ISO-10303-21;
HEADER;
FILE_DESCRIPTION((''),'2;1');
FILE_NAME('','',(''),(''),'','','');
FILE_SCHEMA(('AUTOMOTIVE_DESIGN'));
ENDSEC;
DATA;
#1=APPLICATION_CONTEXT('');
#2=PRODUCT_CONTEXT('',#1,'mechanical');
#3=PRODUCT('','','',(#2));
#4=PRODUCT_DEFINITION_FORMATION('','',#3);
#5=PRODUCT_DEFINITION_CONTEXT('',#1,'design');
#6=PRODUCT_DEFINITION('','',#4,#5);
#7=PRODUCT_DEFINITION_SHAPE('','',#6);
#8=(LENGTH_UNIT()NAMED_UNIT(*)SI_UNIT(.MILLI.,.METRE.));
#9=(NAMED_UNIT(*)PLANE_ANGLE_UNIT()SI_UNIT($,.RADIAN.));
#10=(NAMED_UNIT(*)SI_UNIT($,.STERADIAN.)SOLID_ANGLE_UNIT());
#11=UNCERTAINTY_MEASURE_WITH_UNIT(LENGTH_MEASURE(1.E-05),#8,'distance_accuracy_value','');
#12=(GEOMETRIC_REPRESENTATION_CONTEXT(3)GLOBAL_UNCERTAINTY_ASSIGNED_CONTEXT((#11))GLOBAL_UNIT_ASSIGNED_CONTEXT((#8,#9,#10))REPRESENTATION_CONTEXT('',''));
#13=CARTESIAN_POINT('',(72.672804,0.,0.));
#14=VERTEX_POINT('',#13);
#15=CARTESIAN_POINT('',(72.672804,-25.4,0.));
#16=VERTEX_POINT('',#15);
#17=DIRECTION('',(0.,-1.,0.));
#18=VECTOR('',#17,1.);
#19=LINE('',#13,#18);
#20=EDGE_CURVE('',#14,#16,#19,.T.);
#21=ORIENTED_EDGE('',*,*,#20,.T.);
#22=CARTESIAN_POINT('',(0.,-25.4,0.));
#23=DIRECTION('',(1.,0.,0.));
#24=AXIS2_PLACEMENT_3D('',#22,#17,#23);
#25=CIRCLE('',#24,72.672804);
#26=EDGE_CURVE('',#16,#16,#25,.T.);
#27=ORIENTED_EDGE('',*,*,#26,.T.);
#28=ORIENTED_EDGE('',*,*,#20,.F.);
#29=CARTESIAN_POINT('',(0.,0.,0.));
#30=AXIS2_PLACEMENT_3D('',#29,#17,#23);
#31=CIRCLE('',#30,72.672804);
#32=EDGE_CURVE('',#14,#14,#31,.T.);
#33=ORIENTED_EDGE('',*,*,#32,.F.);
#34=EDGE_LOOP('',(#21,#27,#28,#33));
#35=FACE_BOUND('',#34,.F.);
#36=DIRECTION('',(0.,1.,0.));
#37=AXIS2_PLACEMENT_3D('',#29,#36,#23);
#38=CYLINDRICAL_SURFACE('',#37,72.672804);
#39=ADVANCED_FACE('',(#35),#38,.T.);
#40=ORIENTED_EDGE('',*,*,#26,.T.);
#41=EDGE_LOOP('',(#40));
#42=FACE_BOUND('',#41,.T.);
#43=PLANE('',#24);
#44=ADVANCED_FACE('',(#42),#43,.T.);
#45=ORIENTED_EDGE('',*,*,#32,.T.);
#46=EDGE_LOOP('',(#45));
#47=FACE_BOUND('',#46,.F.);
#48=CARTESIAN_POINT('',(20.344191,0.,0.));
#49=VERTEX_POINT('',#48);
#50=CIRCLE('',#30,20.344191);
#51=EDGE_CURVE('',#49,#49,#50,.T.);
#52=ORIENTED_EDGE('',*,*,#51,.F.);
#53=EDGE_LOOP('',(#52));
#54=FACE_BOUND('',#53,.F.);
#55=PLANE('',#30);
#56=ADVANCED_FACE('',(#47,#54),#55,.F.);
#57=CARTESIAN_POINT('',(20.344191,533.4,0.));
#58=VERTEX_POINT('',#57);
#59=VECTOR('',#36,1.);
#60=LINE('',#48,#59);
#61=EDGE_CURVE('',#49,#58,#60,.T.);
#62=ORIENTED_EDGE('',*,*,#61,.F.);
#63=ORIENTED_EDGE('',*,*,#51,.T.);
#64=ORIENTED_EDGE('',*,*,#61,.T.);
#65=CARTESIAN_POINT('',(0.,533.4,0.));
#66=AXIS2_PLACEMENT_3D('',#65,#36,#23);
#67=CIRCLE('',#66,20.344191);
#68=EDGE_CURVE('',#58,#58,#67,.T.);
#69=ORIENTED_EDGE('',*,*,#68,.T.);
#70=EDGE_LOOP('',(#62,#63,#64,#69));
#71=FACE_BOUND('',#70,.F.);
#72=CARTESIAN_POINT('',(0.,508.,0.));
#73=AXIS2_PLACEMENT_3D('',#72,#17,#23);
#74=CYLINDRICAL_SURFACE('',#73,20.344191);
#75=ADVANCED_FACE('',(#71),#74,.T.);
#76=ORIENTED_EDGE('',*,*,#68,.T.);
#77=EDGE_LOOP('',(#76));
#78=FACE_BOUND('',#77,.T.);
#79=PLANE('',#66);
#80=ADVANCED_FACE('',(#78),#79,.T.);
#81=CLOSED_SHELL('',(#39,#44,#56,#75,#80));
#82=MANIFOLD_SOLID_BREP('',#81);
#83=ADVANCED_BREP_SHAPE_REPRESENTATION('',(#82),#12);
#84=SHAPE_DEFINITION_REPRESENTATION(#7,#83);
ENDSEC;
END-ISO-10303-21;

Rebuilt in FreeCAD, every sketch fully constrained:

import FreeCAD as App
import Part
import Sketcher
from FreeCAD import Vector
Q = App.Units.Quantity

doc = App.newDocument("Part")
body = doc.addObject("PartDesign::Body", "Body")

# Sketch on XZ plane
sketch1 = body.newObject("Sketcher::SketchObject", "Sketch")
sketch1.AttachmentSupport = (doc.getObject("XZ_Plane"), [""])
sketch1.MapMode = "FlatFace"
sketch1.addGeometry(Part.Circle(Vector(0, 0, 0), Vector(0, 0, 1), 73), False)
sketch1.addConstraint(Sketcher.Constraint("Coincident", 0, 3, -1, 1))
sketch1.addConstraint(Sketcher.Constraint("Diameter", 0, Q("145.345608 mm")))
pad1 = body.newObject("PartDesign::Pad", "Pad")
pad1.Profile = sketch1
pad1.Length = Q("1 in")

# Sketch on XZ plane
sketch2 = body.newObject("Sketcher::SketchObject", "Sketch001")
sketch2.AttachmentSupport = (doc.getObject("XZ_Plane"), [""])
sketch2.MapMode = "FlatFace"
sketch2.addGeometry(Part.Circle(Vector(0, 0, 0), Vector(0, 0, 1), 20), False)
sketch2.addConstraint(Sketcher.Constraint("Coincident", 0, 3, -1, 1))
sketch2.addConstraint(Sketcher.Constraint("Diameter", 0, Q("40.688382 mm")))
pad2 = body.newObject("PartDesign::Pad", "Pad001")
pad2.Profile = sketch2
pad2.Length = Q("20 in")
pad2.Reversed = True

# Sketch on XZ plane
sketch3 = body.newObject("Sketcher::SketchObject", "Sketch002")
sketch3.AttachmentSupport = (doc.getObject("XZ_Plane"), [""])
sketch3.MapMode = "FlatFace"
sketch3.AttachmentOffset = App.Placement(Vector(0, 0, -20 * 25.4), App.Rotation())
sketch3.addGeometry(Part.Circle(Vector(0, 0, 0), Vector(0, 0, 1), 20), False)
sketch3.addConstraint(Sketcher.Constraint("Coincident", 0, 3, -1, 1))
sketch3.addConstraint(Sketcher.Constraint("Diameter", 0, Q("40.688382 mm")))
pad3 = body.newObject("PartDesign::Pad", "Pad002")
pad3.Profile = sketch3
pad3.Length = Q("1 in")
pad3.Reversed = True

doc.recompute()
